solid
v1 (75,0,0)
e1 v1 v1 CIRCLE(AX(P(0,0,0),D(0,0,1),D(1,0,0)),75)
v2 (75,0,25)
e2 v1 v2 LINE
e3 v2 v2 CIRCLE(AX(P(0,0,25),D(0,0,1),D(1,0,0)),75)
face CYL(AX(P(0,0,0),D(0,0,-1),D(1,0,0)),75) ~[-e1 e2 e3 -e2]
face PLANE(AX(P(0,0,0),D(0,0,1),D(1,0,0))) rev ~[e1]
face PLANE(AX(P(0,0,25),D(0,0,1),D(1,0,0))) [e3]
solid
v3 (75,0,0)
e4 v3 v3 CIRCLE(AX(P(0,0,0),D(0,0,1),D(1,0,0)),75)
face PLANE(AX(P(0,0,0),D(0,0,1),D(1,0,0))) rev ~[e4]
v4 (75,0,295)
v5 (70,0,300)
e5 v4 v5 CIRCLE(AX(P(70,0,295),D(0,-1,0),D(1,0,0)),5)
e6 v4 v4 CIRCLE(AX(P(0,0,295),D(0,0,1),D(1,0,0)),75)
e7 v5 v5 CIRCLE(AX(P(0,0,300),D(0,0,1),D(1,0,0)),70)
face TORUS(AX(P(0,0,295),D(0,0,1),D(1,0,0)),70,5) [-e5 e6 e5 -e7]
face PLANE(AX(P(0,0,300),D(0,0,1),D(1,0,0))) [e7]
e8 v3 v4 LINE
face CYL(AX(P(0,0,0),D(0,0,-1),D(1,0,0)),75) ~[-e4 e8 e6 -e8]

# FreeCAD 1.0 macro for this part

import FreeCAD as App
import Part
import Sketcher

V = App.Vector


def edges_at(feature, points):
    """Names of the edges that pass closest to the given points."""
    edges = feature.Shape.Edges
    near = lambda p: min(range(len(edges)), key=lambda i: edges[i].distToShape(Part.Vertex(*p))[0])
    return sorted({f"Edge{near(p) + 1}" for p in points})

doc = App.newDocument("Part")
body = doc.addObject("PartDesign::Body", "Body")

sketch1 = body.newObject("Sketcher::SketchObject", "Sketch")
sketch1.AttachmentSupport = (doc.getObject("XY_Plane"), [""])
sketch1.MapMode = "FlatFace"
sketch1.addGeometry(Part.Circle(V(0, 0, 0), V(0, 0, 1), 75), False)
sketch1.addConstraint([
    Sketcher.Constraint("Coincident", 0, 3, -1, 1),
    Sketcher.Constraint("Diameter", 0, 150.0),
])
pad1 = body.newObject("PartDesign::Pad", "Pad")
pad1.Profile = sketch1
pad1.Length = 300
doc.recompute()

fillet = body.newObject("PartDesign::Fillet", "Fillet")
fillet.Base = (pad1, edges_at(pad1, [(-75, 0, 300)]))
fillet.Radius = 5
body2 = doc.addObject("PartDesign::Body", "Body001")

sketch2 = body2.newObject("Sketcher::SketchObject", "Sketch001")
sketch2.AttachmentSupport = (doc.getObject("XY_Plane001"), [""])
sketch2.MapMode = "FlatFace"
sketch2.addGeometry(Part.Circle(V(0, 0, 0), V(0, 0, 1), 75), False)
sketch2.addConstraint([
    Sketcher.Constraint("Coincident", 0, 3, -1, 1),
    Sketcher.Constraint("Diameter", 0, 150.0),
])
pad2 = body2.newObject("PartDesign::Pad", "Pad001")
pad2.Profile = sketch2
pad2.Length = 25

doc.recompute()
